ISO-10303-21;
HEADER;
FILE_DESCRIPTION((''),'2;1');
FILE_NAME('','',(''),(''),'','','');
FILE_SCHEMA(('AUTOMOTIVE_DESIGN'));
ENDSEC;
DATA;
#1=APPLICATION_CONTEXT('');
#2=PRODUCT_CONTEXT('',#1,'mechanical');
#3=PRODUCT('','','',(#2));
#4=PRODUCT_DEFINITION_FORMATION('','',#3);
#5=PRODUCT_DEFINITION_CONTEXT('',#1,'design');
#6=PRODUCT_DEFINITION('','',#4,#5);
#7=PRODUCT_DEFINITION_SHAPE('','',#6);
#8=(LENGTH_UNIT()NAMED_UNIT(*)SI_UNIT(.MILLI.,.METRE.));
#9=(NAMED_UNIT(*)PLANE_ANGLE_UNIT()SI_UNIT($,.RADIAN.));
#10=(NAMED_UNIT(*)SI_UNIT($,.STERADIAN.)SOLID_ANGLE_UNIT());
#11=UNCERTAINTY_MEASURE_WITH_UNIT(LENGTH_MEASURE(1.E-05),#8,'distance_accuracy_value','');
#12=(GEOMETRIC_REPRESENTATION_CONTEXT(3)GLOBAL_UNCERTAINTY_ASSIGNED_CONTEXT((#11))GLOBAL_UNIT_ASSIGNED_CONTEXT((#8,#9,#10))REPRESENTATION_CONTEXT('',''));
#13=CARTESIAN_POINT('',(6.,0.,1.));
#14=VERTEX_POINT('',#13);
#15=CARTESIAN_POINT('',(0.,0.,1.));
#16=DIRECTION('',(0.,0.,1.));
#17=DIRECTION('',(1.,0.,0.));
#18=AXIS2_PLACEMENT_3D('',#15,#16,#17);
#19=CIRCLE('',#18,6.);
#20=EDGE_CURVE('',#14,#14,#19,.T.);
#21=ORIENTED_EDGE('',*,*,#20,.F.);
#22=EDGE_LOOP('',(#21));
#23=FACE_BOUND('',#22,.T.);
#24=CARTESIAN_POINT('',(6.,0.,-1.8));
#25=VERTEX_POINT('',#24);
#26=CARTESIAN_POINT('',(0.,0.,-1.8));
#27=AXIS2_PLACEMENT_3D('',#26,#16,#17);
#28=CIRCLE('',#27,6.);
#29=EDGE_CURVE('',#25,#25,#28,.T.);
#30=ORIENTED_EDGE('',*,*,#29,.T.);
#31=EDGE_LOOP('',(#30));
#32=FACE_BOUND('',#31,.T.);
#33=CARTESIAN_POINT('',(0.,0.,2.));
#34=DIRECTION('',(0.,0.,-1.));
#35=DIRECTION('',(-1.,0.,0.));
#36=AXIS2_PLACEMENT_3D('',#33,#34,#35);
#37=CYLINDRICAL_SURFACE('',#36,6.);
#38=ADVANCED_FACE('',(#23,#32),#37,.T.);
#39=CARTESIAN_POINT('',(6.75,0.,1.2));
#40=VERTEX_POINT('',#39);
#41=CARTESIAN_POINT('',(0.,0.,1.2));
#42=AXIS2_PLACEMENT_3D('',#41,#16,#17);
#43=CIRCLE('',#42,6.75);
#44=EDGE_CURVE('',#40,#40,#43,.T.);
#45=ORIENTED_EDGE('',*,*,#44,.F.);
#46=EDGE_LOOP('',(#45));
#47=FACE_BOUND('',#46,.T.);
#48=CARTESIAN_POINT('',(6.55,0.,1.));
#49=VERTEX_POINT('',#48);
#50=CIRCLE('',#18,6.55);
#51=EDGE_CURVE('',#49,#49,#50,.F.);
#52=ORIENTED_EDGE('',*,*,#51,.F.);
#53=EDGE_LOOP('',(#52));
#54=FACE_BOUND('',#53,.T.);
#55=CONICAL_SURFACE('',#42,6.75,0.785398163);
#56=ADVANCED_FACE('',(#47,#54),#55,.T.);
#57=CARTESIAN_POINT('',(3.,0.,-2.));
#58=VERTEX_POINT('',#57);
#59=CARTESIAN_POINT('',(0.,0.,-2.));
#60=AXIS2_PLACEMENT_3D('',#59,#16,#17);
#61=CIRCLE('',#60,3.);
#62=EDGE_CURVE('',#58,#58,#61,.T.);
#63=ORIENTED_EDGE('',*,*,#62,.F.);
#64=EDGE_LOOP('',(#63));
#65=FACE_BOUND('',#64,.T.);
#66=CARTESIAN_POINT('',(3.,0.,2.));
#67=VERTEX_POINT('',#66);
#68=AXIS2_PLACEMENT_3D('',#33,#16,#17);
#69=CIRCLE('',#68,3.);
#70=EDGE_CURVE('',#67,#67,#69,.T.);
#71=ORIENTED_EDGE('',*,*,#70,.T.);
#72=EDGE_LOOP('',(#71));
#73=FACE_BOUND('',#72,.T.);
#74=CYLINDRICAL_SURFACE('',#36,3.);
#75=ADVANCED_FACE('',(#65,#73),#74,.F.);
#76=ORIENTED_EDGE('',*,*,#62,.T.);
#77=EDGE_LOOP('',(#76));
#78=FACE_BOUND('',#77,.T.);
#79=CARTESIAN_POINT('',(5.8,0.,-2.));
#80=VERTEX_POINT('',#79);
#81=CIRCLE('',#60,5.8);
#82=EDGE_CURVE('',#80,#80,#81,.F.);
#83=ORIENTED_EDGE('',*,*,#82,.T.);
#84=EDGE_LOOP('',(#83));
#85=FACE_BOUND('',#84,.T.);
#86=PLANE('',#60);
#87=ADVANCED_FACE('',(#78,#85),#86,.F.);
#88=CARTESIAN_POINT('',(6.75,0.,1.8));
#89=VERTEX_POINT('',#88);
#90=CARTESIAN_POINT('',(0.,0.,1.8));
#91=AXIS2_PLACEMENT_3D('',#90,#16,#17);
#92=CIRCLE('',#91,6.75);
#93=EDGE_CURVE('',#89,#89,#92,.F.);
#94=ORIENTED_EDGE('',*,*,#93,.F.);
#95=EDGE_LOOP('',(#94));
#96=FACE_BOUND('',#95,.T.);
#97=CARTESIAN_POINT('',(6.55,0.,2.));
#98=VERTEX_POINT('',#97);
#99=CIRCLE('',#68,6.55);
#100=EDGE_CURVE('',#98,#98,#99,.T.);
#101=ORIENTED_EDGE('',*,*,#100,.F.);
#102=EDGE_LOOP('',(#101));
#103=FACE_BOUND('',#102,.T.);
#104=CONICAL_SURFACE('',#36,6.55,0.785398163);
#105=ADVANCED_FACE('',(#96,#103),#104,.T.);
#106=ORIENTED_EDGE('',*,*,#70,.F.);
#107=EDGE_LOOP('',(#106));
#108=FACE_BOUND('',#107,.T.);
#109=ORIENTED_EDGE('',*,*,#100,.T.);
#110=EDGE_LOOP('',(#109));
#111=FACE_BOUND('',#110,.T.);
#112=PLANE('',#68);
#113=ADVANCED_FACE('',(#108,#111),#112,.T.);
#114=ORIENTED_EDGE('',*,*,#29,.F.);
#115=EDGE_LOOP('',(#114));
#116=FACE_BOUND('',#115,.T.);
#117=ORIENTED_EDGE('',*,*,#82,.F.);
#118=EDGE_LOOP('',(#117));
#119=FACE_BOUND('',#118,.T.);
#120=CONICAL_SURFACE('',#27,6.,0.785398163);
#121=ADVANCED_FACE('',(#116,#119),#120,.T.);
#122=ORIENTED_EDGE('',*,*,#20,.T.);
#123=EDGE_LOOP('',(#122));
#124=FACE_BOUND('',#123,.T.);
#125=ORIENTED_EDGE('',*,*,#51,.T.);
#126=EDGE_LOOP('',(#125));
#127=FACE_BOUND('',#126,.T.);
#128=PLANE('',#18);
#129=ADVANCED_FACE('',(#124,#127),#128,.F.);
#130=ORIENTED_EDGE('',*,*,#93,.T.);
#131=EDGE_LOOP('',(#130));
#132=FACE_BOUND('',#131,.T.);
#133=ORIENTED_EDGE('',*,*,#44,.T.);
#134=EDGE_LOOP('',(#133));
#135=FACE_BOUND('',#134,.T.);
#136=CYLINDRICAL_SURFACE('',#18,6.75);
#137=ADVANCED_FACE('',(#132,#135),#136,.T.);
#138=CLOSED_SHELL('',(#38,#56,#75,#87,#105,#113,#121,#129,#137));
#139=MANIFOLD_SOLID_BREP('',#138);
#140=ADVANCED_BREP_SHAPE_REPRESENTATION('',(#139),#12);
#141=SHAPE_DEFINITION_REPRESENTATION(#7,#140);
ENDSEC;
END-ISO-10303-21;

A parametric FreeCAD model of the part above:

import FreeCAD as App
import Part
import Sketcher
from FreeCAD import Vector


def edges_at(feature, points):
    """Names of the edges that pass closest to the given points."""
    edges = feature.Shape.Edges
    near = lambda p: min(range(len(edges)), key=lambda i: edges[i].distToShape(Part.Vertex(*p))[0])
    return sorted({f"Edge{near(p) + 1}" for p in points})

doc = App.newDocument("Part")
body = doc.addObject("PartDesign::Body", "Body")

# Sketch on XY plane
sketch1 = body.newObject("Sketcher::SketchObject", "Sketch")
sketch1.AttachmentSupport = (doc.getObject("XY_Plane"), [""])
sketch1.MapMode = "FlatFace"
sketch1.addGeometry(Part.Circle(Vector(0, 0, 0), Vector(0, 0, 1), 6), False)
sketch1.addGeometry(Part.Circle(Vector(0, 0, 0), Vector(0, 0, 1), 3), False)
sketch1.addConstraint(Sketcher.Constraint("Coincident", 0, 3, -1, 1))
sketch1.addConstraint(Sketcher.Constraint("Coincident", 1, 3, -1, 1))
sketch1.addConstraint(Sketcher.Constraint("Diameter", 0, 12.0))
sketch1.addConstraint(Sketcher.Constraint("Diameter", 1, 6.0))
pad1 = body.newObject("PartDesign::Pad", "Pad")
pad1.Profile = sketch1
pad1.Length = 4
pad1.Midplane = True

# Sketch on XY plane
sketch2 = body.newObject("Sketcher::SketchObject", "Sketch001")
sketch2.AttachmentSupport = (doc.getObject("XY_Plane"), [""])
sketch2.MapMode = "FlatFace"
sketch2.AttachmentOffset = App.Placement(Vector(0, 0, 2), App.Rotation())
sketch2.addGeometry(Part.Circle(Vector(0, 0, 0), Vector(0, 0, 1), 6.75), False)
sketch2.addGeometry(Part.Circle(Vector(0, 0, 0), Vector(0, 0, 1), 3), False)
sketch2.addConstraint(Sketcher.Constraint("Coincident", 0, 3, -1, 1))
sketch2.addConstraint(Sketcher.Constraint("Coincident", 1, 3, -1, 1))
sketch2.addConstraint(Sketcher.Constraint("Diameter", 1, 6.0))
sketch2.addConstraint(Sketcher.Constraint("Diameter", 0, 13.5))
pad2 = body.newObject("PartDesign::Pad", "Pad001")
pad2.Profile = sketch2
pad2.Length = 1
pad2.Reversed = True
doc.recompute()

chamfer = body.newObject("PartDesign::Chamfer", "Chamfer")
chamfer.Base = (pad2, edges_at(pad2, [(-6.75, 0, 2), (-6.75, 0, 1), (-6, 0, -2)]))
chamfer.Size = 0.2

doc.recompute()
